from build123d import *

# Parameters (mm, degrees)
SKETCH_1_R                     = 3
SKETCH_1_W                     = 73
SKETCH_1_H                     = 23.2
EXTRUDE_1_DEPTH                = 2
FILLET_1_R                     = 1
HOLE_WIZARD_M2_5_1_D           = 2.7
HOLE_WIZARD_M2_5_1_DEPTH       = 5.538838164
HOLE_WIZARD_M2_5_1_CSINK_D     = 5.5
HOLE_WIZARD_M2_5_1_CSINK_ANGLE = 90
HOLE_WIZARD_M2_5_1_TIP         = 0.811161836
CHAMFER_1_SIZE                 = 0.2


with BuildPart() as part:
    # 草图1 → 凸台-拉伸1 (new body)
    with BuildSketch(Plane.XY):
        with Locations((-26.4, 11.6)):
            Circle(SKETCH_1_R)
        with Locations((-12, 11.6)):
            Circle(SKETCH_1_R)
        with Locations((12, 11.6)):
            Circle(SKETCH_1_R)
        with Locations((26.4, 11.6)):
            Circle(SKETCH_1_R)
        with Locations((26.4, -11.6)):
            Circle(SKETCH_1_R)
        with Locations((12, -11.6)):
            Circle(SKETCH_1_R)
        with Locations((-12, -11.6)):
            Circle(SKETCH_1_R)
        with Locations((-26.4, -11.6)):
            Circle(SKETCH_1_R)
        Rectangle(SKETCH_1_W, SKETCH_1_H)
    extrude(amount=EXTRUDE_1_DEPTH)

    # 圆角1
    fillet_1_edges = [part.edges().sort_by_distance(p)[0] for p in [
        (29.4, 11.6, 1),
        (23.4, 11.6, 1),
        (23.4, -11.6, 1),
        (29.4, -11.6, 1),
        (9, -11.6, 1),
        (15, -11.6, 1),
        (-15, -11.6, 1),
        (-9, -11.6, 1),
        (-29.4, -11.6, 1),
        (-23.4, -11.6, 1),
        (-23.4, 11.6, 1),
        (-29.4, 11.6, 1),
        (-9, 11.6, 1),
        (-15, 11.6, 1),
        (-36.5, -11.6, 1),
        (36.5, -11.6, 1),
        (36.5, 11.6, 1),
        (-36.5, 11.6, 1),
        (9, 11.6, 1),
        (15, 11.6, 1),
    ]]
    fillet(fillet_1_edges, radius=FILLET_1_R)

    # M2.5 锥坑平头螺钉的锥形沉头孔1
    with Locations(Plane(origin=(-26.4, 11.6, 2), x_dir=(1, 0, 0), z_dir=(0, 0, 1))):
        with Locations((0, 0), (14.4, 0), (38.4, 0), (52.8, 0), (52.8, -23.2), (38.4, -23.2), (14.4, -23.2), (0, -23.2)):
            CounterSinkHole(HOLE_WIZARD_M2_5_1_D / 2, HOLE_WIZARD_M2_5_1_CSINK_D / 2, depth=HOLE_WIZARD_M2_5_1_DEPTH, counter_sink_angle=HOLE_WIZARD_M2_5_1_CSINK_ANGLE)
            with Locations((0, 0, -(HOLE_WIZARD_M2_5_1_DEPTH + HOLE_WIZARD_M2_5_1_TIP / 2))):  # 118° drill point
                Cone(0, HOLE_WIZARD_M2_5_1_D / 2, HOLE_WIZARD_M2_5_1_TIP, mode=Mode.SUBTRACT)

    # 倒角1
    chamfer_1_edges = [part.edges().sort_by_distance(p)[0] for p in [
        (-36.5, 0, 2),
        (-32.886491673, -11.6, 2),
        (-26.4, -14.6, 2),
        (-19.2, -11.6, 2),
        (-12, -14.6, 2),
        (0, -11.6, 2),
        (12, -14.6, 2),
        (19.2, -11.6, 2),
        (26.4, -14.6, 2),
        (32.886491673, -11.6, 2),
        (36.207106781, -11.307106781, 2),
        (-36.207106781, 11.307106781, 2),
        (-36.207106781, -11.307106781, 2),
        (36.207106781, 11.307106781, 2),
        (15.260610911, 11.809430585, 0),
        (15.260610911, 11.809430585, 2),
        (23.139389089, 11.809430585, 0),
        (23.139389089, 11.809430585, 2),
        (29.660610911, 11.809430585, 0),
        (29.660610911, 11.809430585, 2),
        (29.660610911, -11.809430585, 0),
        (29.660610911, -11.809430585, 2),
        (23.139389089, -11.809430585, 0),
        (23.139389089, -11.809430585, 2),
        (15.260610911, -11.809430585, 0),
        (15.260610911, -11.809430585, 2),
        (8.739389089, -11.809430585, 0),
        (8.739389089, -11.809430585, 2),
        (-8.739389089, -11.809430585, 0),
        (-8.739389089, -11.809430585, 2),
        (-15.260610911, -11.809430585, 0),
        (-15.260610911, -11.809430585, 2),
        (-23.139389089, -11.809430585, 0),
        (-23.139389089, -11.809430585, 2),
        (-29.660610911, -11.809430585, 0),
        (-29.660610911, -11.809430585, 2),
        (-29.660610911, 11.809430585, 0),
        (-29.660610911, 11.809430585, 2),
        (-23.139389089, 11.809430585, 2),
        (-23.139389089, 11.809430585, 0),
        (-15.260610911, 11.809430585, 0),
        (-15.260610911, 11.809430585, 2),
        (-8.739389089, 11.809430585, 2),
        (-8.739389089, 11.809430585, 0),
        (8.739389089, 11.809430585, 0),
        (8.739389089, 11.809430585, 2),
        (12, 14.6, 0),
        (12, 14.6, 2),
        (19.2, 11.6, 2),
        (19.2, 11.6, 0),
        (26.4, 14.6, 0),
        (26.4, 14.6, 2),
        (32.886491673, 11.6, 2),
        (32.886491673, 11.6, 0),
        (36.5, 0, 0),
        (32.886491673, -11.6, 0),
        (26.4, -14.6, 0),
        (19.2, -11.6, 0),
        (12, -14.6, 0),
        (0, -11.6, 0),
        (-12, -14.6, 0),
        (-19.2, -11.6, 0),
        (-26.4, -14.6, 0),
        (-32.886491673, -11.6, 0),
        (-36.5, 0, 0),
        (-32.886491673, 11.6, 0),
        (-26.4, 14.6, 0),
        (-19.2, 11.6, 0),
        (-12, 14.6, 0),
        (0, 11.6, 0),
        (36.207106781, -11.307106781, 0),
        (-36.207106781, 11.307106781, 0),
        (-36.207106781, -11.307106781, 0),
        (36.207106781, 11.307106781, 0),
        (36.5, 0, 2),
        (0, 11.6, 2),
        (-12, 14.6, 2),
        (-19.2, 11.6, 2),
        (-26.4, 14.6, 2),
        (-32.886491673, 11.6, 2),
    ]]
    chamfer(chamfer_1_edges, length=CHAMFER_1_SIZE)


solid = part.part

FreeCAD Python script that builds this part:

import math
import FreeCAD as App
import Part
import Sketcher
from FreeCAD import Vector
Q = App.Units.Quantity


def edges_at(feature, points):
    """Names of the edges that pass closest to the given points."""
    edges = feature.Shape.Edges
    near = lambda p: min(range(len(edges)), key=lambda i: edges[i].distToShape(Part.Vertex(*p))[0])
    return sorted({f"Edge{near(p) + 1}" for p in points})

doc = App.newDocument("Part")
body = doc.addObject("PartDesign::Body", "Body")

sketch1 = body.newObject("Sketcher::SketchObject", "Sketch")
sketch1.AttachmentSupport = (doc.getObject("XY_Plane"), [""])
sketch1.MapMode = "FlatFace"
sketch1.addGeometry(Part.ArcOfCircle(Part.Circle(Vector(-26.4, 11.6, 0), Vector(0, 0, 1), 3), math.radians(0), math.radians(180)), False)
sketch1.addGeometry(Part.LineSegment(Vector(-29.4, 11.6, 0), Vector(-36.5, 11.6, 0)), False)
sketch1.addGeometry(Part.LineSegment(Vector(-36.5, 11.6, 0), Vector(-36.5, -11.6, 0)), False)
sketch1.addGeometry(Part.LineSegment(Vector(-36.5, -11.6, 0), Vector(-29.4, -11.6, 0)), False)
sketch1.addGeometry(Part.ArcOfCircle(Part.Circle(Vector(-26.4, -11.6, 0), Vector(0, 0, 1), 3), math.radians(180), math.radians(360)), False)
sketch1.addGeometry(Part.LineSegment(Vector(-23.4, -11.6, 0), Vector(-15, -11.6, 0)), False)
sketch1.addGeometry(Part.ArcOfCircle(Part.Circle(Vector(-12, -11.6, 0), Vector(0, 0, 1), 3), math.radians(180), math.radians(360)), False)
sketch1.addGeometry(Part.LineSegment(Vector(-9, -11.6, 0), Vector(9, -11.6, 0)), False)
sketch1.addGeometry(Part.ArcOfCircle(Part.Circle(Vector(12, -11.6, 0), Vector(0, 0, 1), 3), math.radians(180), math.radians(360)), False)
sketch1.addGeometry(Part.LineSegment(Vector(15, -11.6, 0), Vector(23.4, -11.6, 0)), False)
sketch1.addGeometry(Part.ArcOfCircle(Part.Circle(Vector(26.4, -11.6, 0), Vector(0, 0, 1), 3), math.radians(180), math.radians(360)), False)
sketch1.addGeometry(Part.LineSegment(Vector(29.4, -11.6, 0), Vector(36.5, -11.6, 0)), False)
sketch1.addGeometry(Part.LineSegment(Vector(36.5, -11.6, 0), Vector(36.5, 11.6, 0)), False)
sketch1.addGeometry(Part.LineSegment(Vector(36.5, 11.6, 0), Vector(29.4, 11.6, 0)), False)
sketch1.addGeometry(Part.ArcOfCircle(Part.Circle(Vector(26.4, 11.6, 0), Vector(0, 0, 1), 3), math.radians(0), math.radians(180)), False)
sketch1.addGeometry(Part.LineSegment(Vector(23.4, 11.6, 0), Vector(15, 11.6, 0)), False)
sketch1.addGeometry(Part.ArcOfCircle(Part.Circle(Vector(12, 11.6, 0), Vector(0, 0, 1), 3), math.radians(0), math.radians(180)), False)
sketch1.addGeometry(Part.LineSegment(Vector(9, 11.6, 0), Vector(-9, 11.6, 0)), False)
sketch1.addGeometry(Part.ArcOfCircle(Part.Circle(Vector(-12, 11.6, 0), Vector(0, 0, 1), 3), math.radians(0), math.radians(180)), False)
sketch1.addGeometry(Part.LineSegment(Vector(-15, 11.6, 0), Vector(-23.4, 11.6, 0)), False)
sketch1.addConstraint(Sketcher.Constraint("Coincident", 0, 2, 1, 1))
sketch1.addConstraint(Sketcher.Constraint("Coincident", 1, 2, 2, 1))
sketch1.addConstraint(Sketcher.Constraint("Coincident", 2, 2, 3, 1))
sketch1.addConstraint(Sketcher.Constraint("Coincident", 3, 2, 4, 1))
sketch1.addConstraint(Sketcher.Constraint("Coincident", 4, 2, 5, 1))
sketch1.addConstraint(Sketcher.Constraint("Coincident", 5, 2, 6, 1))
sketch1.addConstraint(Sketcher.Constraint("Coincident", 6, 2, 7, 1))
sketch1.addConstraint(Sketcher.Constraint("Coincident", 7, 2, 8, 1))
sketch1.addConstraint(Sketcher.Constraint("Coincident", 8, 2, 9, 1))
sketch1.addConstraint(Sketcher.Constraint("Coincident", 9, 2, 10, 1))
sketch1.addConstraint(Sketcher.Constraint("Coincident", 10, 2, 11, 1))
sketch1.addConstraint(Sketcher.Constraint("Coincident", 11, 2, 12, 1))
sketch1.addConstraint(Sketcher.Constraint("Coincident", 12, 2, 13, 1))
sketch1.addConstraint(Sketcher.Constraint("Coincident", 13, 2, 14, 1))
sketch1.addConstraint(Sketcher.Constraint("Coincident", 14, 2, 15, 1))
sketch1.addConstraint(Sketcher.Constraint("Coincident", 15, 2, 16, 1))
sketch1.addConstraint(Sketcher.Constraint("Coincident", 16, 2, 17, 1))
sketch1.addConstraint(Sketcher.Constraint("Coincident", 17, 2, 18, 1))
sketch1.addConstraint(Sketcher.Constraint("Coincident", 18, 2, 19, 1))
sketch1.addConstraint(Sketcher.Constraint("Coincident", 19, 2, 0, 1))
sketch1.addConstraint(Sketcher.Constraint("Horizontal", 1))
sketch1.addConstraint(Sketcher.Constraint("Vertical", 2))
sketch1.addConstraint(Sketcher.Constraint("Horizontal", 3))
sketch1.addConstraint(Sketcher.Constraint("Horizontal", 5))
sketch1.addConstraint(Sketcher.Constraint("Horizontal", 7))
sketch1.addConstraint(Sketcher.Constraint("Horizontal", 9))
sketch1.addConstraint(Sketcher.Constraint("Horizontal", 11))
sketch1.addConstraint(Sketcher.Constraint("Vertical", 12))
sketch1.addConstraint(Sketcher.Constraint("Horizontal", 13))
sketch1.addConstraint(Sketcher.Constraint("Horizontal", 15))
sketch1.addConstraint(Sketcher.Constraint("Horizontal", 17))
sketch1.addConstraint(Sketcher.Constraint("Horizontal", 19))
sketch1.addConstraint(Sketcher.Constraint("Equal", 0, 4))
sketch1.addConstraint(Sketcher.Constraint("Equal", 4, 6))
sketch1.addConstraint(Sketcher.Constraint("Equal", 6, 8))
sketch1.addConstraint(Sketcher.Constraint("Equal", 8, 10))
sketch1.addConstraint(Sketcher.Constraint("Equal", 10, 14))
sketch1.addConstraint(Sketcher.Constraint("Equal", 14, 16))
sketch1.addConstraint(Sketcher.Constraint("Equal", 16, 18))
sketch1.addConstraint(Sketcher.Constraint("Symmetric", 0, 3, 10, 3, -1, 1))
sketch1.addConstraint(Sketcher.Constraint("Symmetric", 4, 3, 14, 3, -1, 1))
sketch1.addConstraint(Sketcher.Constraint("Symmetric", 6, 3, 16, 3, -1, 1))
sketch1.addConstraint(Sketcher.Constraint("Symmetric", 8, 3, 18, 3, -1, 1))
sketch1.addConstraint(Sketcher.Constraint("Symmetric", 1, 2, 11, 2, -1, 1))
sketch1.addConstraint(Sketcher.Constraint("Symmetric", 6, 3, 8, 3, -2))
sketch1.addConstraint(Sketcher.Constraint("Symmetric", 4, 3, 10, 3, -2))
sketch1.addConstraint(Sketcher.Constraint("Horizontal", 4, 3, 6, 3))
sketch1.addConstraint(Sketcher.Constraint("Horizontal", 18, 3, 0, 2))
sketch1.addConstraint(Sketcher.Constraint("Horizontal", 10, 3, 2, 2))
sketch1.addConstraint(Sketcher.Constraint("Horizontal", 3, 2, 4, 2))
sketch1.addConstraint(Sketcher.Constraint("Horizontal", 5, 2, 6, 2))
sketch1.addConstraint(Sketcher.Constraint("Horizontal", 7, 2, 8, 2))
sketch1.addConstraint(Sketcher.Constraint("Horizontal", 1, 2, 12, 2))
sketch1.addConstraint(Sketcher.Constraint("Horizontal", 13, 2, 14, 2))
sketch1.addConstraint(Sketcher.Constraint("Horizontal", 15, 2, 16, 2))
sketch1.addConstraint(Sketcher.Constraint("Horizontal", 17, 2, 18, 2))
sketch1.addConstraint(Sketcher.Constraint("Radius", 0, Q("3 mm")))
sketch1.addConstraint(Sketcher.Constraint("DistanceX", 7, 1, 7, 2, Q("18 mm")))
sketch1.addConstraint(Sketcher.Constraint("DistanceX", 1, 2, 1, 1, Q("7.1 mm")))
sketch1.addConstraint(Sketcher.Constraint("DistanceX", 5, 1, 5, 2, Q("8.4 mm")))
sketch1.addConstraint(Sketcher.Constraint("DistanceY", 2, 2, 2, 1, Q("23.2 mm")))
pad1 = body.newObject("PartDesign::Pad", "Pad")
pad1.Profile = sketch1
pad1.Length = 2
doc.recompute()

fillet = body.newObject("PartDesign::Fillet", "Fillet")
fillet.Base = (pad1, edges_at(pad1, [
    (29.4, 11.6, 1),
    (23.4, 11.6, 1),
    (23.4, -11.6, 1),
    (29.4, -11.6, 1),
    (9, -11.6, 1),
    (15, -11.6, 1),
    (-15, -11.6, 1),
    (-9, -11.6, 1),
    (-29.4, -11.6, 1),
    (-23.4, -11.6, 1),
    (-23.4, 11.6, 1),
    (-29.4, 11.6, 1),
    (-9, 11.6, 1),
    (-15, 11.6, 1),
    (-36.5, -11.6, 1),
    (36.5, -11.6, 1),
    (36.5, 11.6, 1),
    (-36.5, 11.6, 1),
    (9, 11.6, 1),
    (15, 11.6, 1),
]))
fillet.Radius = 1

sketch2 = body.newObject("Sketcher::SketchObject", "Sketch001")
sketch2.AttachmentSupport = (doc.getObject("XY_Plane"), [""])
sketch2.MapMode = "FlatFace"
sketch2.AttachmentOffset = App.Placement(Vector(0, 0, 2), App.Rotation())
sketch2.addGeometry(Part.Circle(Vector(-26.4, 11.6, 0), Vector(0, 0, 1), 1.4), False)
sketch2.addGeometry(Part.Circle(Vector(-12, 11.6, 0), Vector(0, 0, 1), 1.4), False)
sketch2.addGeometry(Part.Circle(Vector(12, 11.6, 0), Vector(0, 0, 1), 1.4), False)
sketch2.addGeometry(Part.Circle(Vector(26.4, 11.6, 0), Vector(0, 0, 1), 1.4), False)
sketch2.addGeometry(Part.Circle(Vector(26.4, -11.6, 0), Vector(0, 0, 1), 1.4), False)
sketch2.addGeometry(Part.Circle(Vector(12, -11.6, 0), Vector(0, 0, 1), 1.4), False)
sketch2.addGeometry(Part.Circle(Vector(-12, -11.6, 0), Vector(0, 0, 1), 1.4), False)
sketch2.addGeometry(Part.Circle(Vector(-26.4, -11.6, 0), Vector(0, 0, 1), 1.4), False)
sketch2.addConstraint(Sketcher.Constraint("Equal", 0, 1))
sketch2.addConstraint(Sketcher.Constraint("Equal", 1, 2))
sketch2.addConstraint(Sketcher.Constraint("Equal", 2, 3))
sketch2.addConstraint(Sketcher.Constraint("Equal", 3, 4))
sketch2.addConstraint(Sketcher.Constraint("Equal", 4, 5))
sketch2.addConstraint(Sketcher.Constraint("Equal", 5, 6))
sketch2.addConstraint(Sketcher.Constraint("Equal", 6, 7))
sketch2.addConstraint(Sketcher.Constraint("Symmetric", 0, 3, 4, 3, -1, 1))
sketch2.addConstraint(Sketcher.Constraint("Symmetric", 1, 3, 5, 3, -1, 1))
sketch2.addConstraint(Sketcher.Constraint("Symmetric", 2, 3, 6, 3, -1, 1))
sketch2.addConstraint(Sketcher.Constraint("Symmetric", 3, 3, 7, 3, -1, 1))
sketch2.addConstraint(Sketcher.Constraint("Symmetric", 1, 3, 2, 3, -2))
sketch2.addConstraint(Sketcher.Constraint("Symmetric", 0, 3, 3, 3, -2))
sketch2.addConstraint(Sketcher.Constraint("Horizontal", 0, 3, 1, 3))
sketch2.addConstraint(Sketcher.Constraint("Diameter", 0, Q("2.7 mm")))
sketch2.addConstraint(Sketcher.Constraint("DistanceX", 1, 3, -1, 1, Q("12 mm")))
sketch2.addConstraint(Sketcher.Constraint("DistanceX", 0, 3, -1, 1, Q("26.4 mm")))
sketch2.addConstraint(Sketcher.Constraint("DistanceY", -1, 1, 0, 3, Q("11.6 mm")))
doc.recompute()
hole = body.newObject("PartDesign::Hole", "Hole")
hole.Profile = sketch2
hole.ThreadType = "None"
hole.Diameter = 2.7
hole.DepthType = "Dimension"
hole.Depth = 5.538838
hole.DrillPoint = "Angled"
hole.DrillPointAngle = 118
hole.HoleCutType = "Countersink"
hole.HoleCutDiameter = 5.5
hole.HoleCutCountersinkAngle = 90
doc.recompute()

chamfer = body.newObject("PartDesign::Chamfer", "Chamfer")
chamfer.Base = (hole, edges_at(hole, [
    (-36.5, 0, 2),
    (-32.886, -11.6, 2),
    (-26.4, -14.6, 2),
    (-19.2, -11.6, 2),
    (-12, -14.6, 2),
    (0, -11.6, 2),
    (12, -14.6, 2),
    (19.2, -11.6, 2),
    (26.4, -14.6, 2),
    (32.886, -11.6, 2),
    (36.207, -11.307, 2),
    (-36.207, 11.307, 2),
    (-36.207, -11.307, 2),
    (36.207, 11.307, 2),
    (15.261, 11.809, 0),
    (15.261, 11.809, 2),
    (23.139, 11.809, 0),
    (23.139, 11.809, 2),
    (29.661, 11.809, 0),
    (29.661, 11.809, 2),
    (29.661, -11.809, 0),
    (29.661, -11.809, 2),
    (23.139, -11.809, 0),
    (23.139, -11.809, 2),
    (15.261, -11.809, 0),
    (15.261, -11.809, 2),
    (8.739, -11.809, 0),
    (8.739, -11.809, 2),
    (-8.739, -11.809, 0),
    (-8.739, -11.809, 2),
    (-15.261, -11.809, 0),
    (-15.261, -11.809, 2),
    (-23.139, -11.809, 0),
    (-23.139, -11.809, 2),
    (-29.661, -11.809, 0),
    (-29.661, -11.809, 2),
    (-29.661, 11.809, 0),
    (-29.661, 11.809, 2),
    (-23.139, 11.809, 2),
    (-23.139, 11.809, 0),
    (-15.261, 11.809, 0),
    (-15.261, 11.809, 2),
    (-8.739, 11.809, 2),
    (-8.739, 11.809, 0),
    (8.739, 11.809, 0),
    (8.739, 11.809, 2),
    (12, 14.6, 0),
    (12, 14.6, 2),
    (19.2, 11.6, 2),
    (19.2, 11.6, 0),
    (26.4, 14.6, 0),
    (26.4, 14.6, 2),
    (32.886, 11.6, 2),
    (32.886, 11.6, 0),
    (36.5, 0, 0),
    (32.886, -11.6, 0),
    (26.4, -14.6, 0),
    (19.2, -11.6, 0),
    (12, -14.6, 0),
    (0, -11.6, 0),
    (-12, -14.6, 0),
    (-19.2, -11.6, 0),
    (-26.4, -14.6, 0),
    (-32.886, -11.6, 0),
    (-36.5, 0, 0),
    (-32.886, 11.6, 0),
    (-26.4, 14.6, 0),
    (-19.2, 11.6, 0),
    (-12, 14.6, 0),
    (0, 11.6, 0),
    (36.207, -11.307, 0),
    (-36.207, 11.307, 0),
    (-36.207, -11.307, 0),
    (36.207, 11.307, 0),
    (36.5, 0, 2),
    (0, 11.6, 2),
    (-12, 14.6, 2),
    (-19.2, 11.6, 2),
    (-26.4, 14.6, 2),
    (-32.886, 11.6, 2),
]))
chamfer.Size = 0.2

doc.recompute()
